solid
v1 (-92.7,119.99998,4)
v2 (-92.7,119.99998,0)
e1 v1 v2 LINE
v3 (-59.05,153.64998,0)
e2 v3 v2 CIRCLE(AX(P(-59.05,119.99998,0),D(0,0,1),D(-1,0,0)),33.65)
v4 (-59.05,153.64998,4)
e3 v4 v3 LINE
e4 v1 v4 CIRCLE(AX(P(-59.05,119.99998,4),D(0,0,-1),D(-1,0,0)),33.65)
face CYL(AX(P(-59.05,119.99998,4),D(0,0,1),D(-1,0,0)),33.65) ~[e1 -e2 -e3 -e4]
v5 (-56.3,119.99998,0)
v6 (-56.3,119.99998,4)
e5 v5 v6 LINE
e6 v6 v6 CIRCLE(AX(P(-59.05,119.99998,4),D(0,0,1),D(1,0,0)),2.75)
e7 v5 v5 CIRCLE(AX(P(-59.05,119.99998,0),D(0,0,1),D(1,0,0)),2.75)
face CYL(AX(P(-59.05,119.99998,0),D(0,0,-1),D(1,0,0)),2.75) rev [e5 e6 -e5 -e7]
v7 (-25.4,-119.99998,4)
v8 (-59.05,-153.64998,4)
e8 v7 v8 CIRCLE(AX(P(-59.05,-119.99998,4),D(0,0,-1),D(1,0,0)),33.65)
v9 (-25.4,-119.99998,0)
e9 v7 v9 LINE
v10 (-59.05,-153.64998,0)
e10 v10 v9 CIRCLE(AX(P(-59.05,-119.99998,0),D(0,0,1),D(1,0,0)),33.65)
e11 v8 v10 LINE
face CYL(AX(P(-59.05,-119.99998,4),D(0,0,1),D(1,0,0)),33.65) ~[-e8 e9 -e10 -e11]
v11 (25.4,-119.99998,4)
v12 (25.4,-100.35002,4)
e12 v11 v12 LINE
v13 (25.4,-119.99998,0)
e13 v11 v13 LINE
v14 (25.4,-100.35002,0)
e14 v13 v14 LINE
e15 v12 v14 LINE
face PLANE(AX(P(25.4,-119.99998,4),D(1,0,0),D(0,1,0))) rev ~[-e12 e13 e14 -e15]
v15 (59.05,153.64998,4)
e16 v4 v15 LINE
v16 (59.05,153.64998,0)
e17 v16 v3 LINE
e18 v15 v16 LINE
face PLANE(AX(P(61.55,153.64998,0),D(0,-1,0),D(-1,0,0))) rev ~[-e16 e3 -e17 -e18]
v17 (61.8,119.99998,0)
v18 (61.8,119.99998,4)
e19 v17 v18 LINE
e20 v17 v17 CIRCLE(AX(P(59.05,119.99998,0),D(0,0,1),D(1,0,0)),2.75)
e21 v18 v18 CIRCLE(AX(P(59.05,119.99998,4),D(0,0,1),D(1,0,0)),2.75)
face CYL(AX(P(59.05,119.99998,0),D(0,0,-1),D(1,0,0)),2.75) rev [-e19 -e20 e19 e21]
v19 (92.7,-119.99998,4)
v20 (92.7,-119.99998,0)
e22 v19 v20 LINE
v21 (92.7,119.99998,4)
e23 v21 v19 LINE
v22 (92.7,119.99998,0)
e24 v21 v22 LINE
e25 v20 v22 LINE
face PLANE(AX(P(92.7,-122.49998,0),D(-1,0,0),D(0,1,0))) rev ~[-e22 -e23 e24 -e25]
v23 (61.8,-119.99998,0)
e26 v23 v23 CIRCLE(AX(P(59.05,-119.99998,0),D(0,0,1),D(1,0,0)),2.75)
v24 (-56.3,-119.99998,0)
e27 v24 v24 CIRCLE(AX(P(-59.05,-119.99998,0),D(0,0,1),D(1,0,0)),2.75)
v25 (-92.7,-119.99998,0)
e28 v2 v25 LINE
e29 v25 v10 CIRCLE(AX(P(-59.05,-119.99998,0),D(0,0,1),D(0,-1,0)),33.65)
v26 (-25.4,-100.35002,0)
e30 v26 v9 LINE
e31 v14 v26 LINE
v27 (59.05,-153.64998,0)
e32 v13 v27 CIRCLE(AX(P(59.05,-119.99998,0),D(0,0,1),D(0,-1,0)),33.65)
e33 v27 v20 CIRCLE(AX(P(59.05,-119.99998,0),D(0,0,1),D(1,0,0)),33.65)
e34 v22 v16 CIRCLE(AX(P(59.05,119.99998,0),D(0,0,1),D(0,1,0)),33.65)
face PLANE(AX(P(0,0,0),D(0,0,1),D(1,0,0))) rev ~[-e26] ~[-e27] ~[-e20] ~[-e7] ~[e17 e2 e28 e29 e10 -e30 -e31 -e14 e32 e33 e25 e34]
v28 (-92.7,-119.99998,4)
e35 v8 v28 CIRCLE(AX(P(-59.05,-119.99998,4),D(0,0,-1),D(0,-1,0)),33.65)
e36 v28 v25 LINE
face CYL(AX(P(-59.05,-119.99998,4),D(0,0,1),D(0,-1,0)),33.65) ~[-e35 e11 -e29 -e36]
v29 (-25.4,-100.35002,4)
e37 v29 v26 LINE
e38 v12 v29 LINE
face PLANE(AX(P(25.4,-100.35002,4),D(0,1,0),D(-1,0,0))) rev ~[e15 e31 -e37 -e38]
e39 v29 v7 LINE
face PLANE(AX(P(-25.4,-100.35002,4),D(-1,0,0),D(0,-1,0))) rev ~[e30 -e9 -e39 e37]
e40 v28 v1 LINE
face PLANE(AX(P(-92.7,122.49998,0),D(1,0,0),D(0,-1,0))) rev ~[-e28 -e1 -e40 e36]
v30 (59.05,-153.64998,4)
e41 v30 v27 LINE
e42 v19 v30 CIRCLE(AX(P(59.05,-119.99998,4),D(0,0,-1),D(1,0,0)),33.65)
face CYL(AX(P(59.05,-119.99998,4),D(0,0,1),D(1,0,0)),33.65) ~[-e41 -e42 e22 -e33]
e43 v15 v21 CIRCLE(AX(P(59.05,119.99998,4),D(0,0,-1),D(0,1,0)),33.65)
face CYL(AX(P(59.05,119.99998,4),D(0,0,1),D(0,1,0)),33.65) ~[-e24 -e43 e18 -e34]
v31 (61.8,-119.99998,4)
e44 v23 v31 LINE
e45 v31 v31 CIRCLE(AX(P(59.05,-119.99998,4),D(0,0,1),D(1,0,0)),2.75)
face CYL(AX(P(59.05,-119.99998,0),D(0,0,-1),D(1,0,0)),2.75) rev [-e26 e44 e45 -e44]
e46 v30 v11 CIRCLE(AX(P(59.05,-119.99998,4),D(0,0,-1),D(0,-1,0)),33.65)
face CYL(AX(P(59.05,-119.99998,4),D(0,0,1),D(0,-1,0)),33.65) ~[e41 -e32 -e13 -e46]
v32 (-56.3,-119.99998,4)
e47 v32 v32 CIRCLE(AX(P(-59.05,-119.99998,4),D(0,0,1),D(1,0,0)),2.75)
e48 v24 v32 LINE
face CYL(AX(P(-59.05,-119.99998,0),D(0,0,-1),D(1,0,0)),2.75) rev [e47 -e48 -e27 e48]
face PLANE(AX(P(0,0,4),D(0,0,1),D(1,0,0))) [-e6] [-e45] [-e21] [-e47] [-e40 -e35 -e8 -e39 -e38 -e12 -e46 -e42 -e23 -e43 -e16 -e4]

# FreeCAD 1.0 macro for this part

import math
import FreeCAD as App
import Part
import Sketcher

V = App.Vector
Q = App.Units.Quantity

doc = App.newDocument("Part")
params = doc.addObject("Spreadsheet::Sheet", "Params")
for row, (alias, value) in enumerate([
    ("sketch1_diameter", "5.5 mm"),
    ("sketch1_radius", "31.15 mm"),
    ("sketch1_width", "123.1 mm"),
    ("pad1_length", "4 mm"),
    ("sketch2_radius", "33.65 mm"),
    ("sketch2_width", "118.1 mm"),
    ("pocket1_length", "25 mm"),
    ("sketch3_radius", "33.65 mm"),
    ("sketch3_width", "50.8 mm"),
    ("pocket2_length", "25 mm"),
], start=1):
    params.set(f"A{row}", alias)
    params.set(f"B{row}", "=" + value)
    params.setAlias(f"B{row}", alias)

body = doc.addObject("PartDesign::Body", "Body")

# Sketch on XY plane
sketch1 = body.newObject("Sketcher::SketchObject", "Sketch")
sketch1.AttachmentSupport = (doc.getObject("XY_Plane"), [""])
sketch1.MapMode = "FlatFace"
sketch1.addGeometry([
    Part.ArcOfCircle(Part.Circle(V(61.5, 122.5, 0), V(0, 0, 1), 31.1), math.radians(0), math.radians(90)),  # 0
    Part.LineSegment(V(61.5, 153.6, 0), V(-61.5, 153.6, 0)),  # 1
    Part.ArcOfCircle(Part.Circle(V(-61.5, 122.5, 0), V(0, 0, 1), 31.1), math.radians(90), math.radians(180)),  # 2
    Part.LineSegment(V(-92.7, 122.5, 0), V(-92.7, -122.5, 0)),  # 3
    Part.ArcOfCircle(Part.Circle(V(-61.5, -122.5, 0), V(0, 0, 1), 31.1), math.radians(180), math.radians(270)),  # 4
    Part.LineSegment(V(-61.5, -153.6, 0), V(61.5, -153.6, 0)),  # 5
    Part.ArcOfCircle(Part.Circle(V(61.5, -122.5, 0), V(0, 0, 1), 31.1), math.radians(-90), math.radians(0)),  # 6
    Part.LineSegment(V(92.7, -122.5, 0), V(92.7, 122.5, 0)),  # 7
    Part.Circle(V(-59, -120, 0), V(0, 0, 1), 2.8),  # 8
    Part.Circle(V(59, -120, 0), V(0, 0, 1), 2.8),  # 9
    Part.Circle(V(-59, 120, 0), V(0, 0, 1), 2.8),  # 10
    Part.Circle(V(59, 120, 0), V(0, 0, 1), 2.8),  # 11
], False)
sketch1.addConstraint([
    Sketcher.Constraint("Tangent", 0, 2, 1, 1),
    Sketcher.Constraint("Tangent", 1, 2, 2, 1),
    Sketcher.Constraint("Tangent", 2, 2, 3, 1),
    Sketcher.Constraint("Tangent", 3, 2, 4, 1),
    Sketcher.Constraint("Tangent", 4, 2, 5, 1),
    Sketcher.Constraint("Tangent", 5, 2, 6, 1),
    Sketcher.Constraint("Tangent", 6, 2, 7, 1),
    Sketcher.Constraint("Tangent", 7, 2, 0, 1),
    Sketcher.Constraint("Horizontal", 1),
    Sketcher.Constraint("Vertical", 3),
    Sketcher.Constraint("Horizontal", 5),
    Sketcher.Constraint("Vertical", 7),
    Sketcher.Constraint("Equal", 0, 2),
    Sketcher.Constraint("Equal", 2, 4),
    Sketcher.Constraint("Equal", 4, 6),
    Sketcher.Constraint("Equal", 8, 9),
    Sketcher.Constraint("Equal", 9, 10),
    Sketcher.Constraint("Equal", 10, 11),
    Sketcher.Constraint("Symmetric", 0, 3, 4, 3, -1, 1),
    Sketcher.Constraint("Symmetric", 9, 3, 10, 3, -1, 1),
    Sketcher.Constraint("Symmetric", 8, 3, 11, 3, -1, 1),
    Sketcher.Constraint("Symmetric", 8, 3, 9, 3, -2),
    Sketcher.Constraint("Diameter", 8, Q("5.5 mm")),
    Sketcher.Constraint("Radius", 0, Q("31.15 mm")),
    Sketcher.Constraint("DistanceX", 1, 2, 1, 1, Q("123.1 mm")),
    Sketcher.Constraint("DistanceX", 4, 3, 8, 3, Q("2.5 mm")),
    Sketcher.Constraint("DistanceY", 4, 3, 8, 3, Q("2.5 mm")),
    Sketcher.Constraint("DistanceY", 3, 2, 3, 1, Q("244.99996 mm")),
])
sketch1.setExpression("Constraints[22]", "Params.sketch1_diameter")
sketch1.setExpression("Constraints[23]", "Params.sketch1_radius")
sketch1.setExpression("Constraints[24]", "Params.sketch1_width")
pad1 = body.newObject("PartDesign::Pad", "Pad")
pad1.Profile = sketch1
pad1.setExpression("Length", "Params.pad1_length")

# Sketch on XY plane
sketch2 = body.newObject("Sketcher::SketchObject", "Sketch001")
sketch2.AttachmentSupport = (doc.getObject("XY_Plane"), [""])
sketch2.MapMode = "FlatFace"
sketch2.AttachmentOffset = App.Placement(V(0, 0, 4), App.Rotation())
sketch2.addGeometry([
    Part.LineSegment(V(-144, 176, 0), V(-144, -176, 0)),  # 0
    Part.LineSegment(V(-144, -176, 0), V(144, -176, 0)),  # 1
    Part.LineSegment(V(144, -176, 0), V(144, 176, 0)),  # 2
    Part.LineSegment(V(144, 176, 0), V(-144, 176, 0)),  # 3
    Part.LineSegment(V(-93, -120, 0), V(-93, 120, 0)),  # 4
    Part.ArcOfCircle(Part.Circle(V(-59, 120, 0), V(0, 0, 1), 34), math.radians(90), math.radians(180)),  # 5
    Part.LineSegment(V(-59, 154, 0), V(59, 154, 0)),  # 6
    Part.ArcOfCircle(Part.Circle(V(59, 120, 0), V(0, 0, 1), 34), math.radians(0), math.radians(90)),  # 7
    Part.LineSegment(V(93, 120, 0), V(93, -120, 0)),  # 8
    Part.ArcOfCircle(Part.Circle(V(59, -120, 0), V(0, 0, 1), 34), math.radians(-90), math.radians(0)),  # 9
    Part.LineSegment(V(59, -154, 0), V(-59, -154, 0)),  # 10
    Part.ArcOfCircle(Part.Circle(V(-59, -120, 0), V(0, 0, 1), 34), math.radians(180), math.radians(270)),  # 11
], False)
sketch2.addConstraint([
    Sketcher.Constraint("Coincident", 0, 2, 1, 1),
    Sketcher.Constraint("Coincident", 1, 2, 2, 1),
    Sketcher.Constraint("Coincident", 2, 2, 3, 1),
    Sketcher.Constraint("Coincident", 3, 2, 0, 1),
    Sketcher.Constraint("Tangent", 4, 2, 5, 2),
    Sketcher.Constraint("Tangent", 5, 1, 6, 1),
    Sketcher.Constraint("Tangent", 6, 2, 7, 2),
    Sketcher.Constraint("Tangent", 7, 1, 8, 1),
    Sketcher.Constraint("Tangent", 8, 2, 9, 2),
    Sketcher.Constraint("Tangent", 9, 1, 10, 1),
    Sketcher.Constraint("Tangent", 10, 2, 11, 2),
    Sketcher.Constraint("Tangent", 11, 1, 4, 1),
    Sketcher.Constraint("Vertical", 0),
    Sketcher.Constraint("Horizontal", 1),
    Sketcher.Constraint("Vertical", 2),
    Sketcher.Constraint("Horizontal", 3),
    Sketcher.Constraint("Vertical", 4),
    Sketcher.Constraint("Horizontal", 6),
    Sketcher.Constraint("Vertical", 8),
    Sketcher.Constraint("Horizontal", 10),
    Sketcher.Constraint("Equal", 5, 7),
    Sketcher.Constraint("Equal", 7, 9),
    Sketcher.Constraint("Equal", 9, 11),
    Sketcher.Constraint("Symmetric", 5, 3, 9, 3, -1, 1),
    Sketcher.Constraint("Symmetric", 0, 2, 2, 2, -1, 1),
    Sketcher.Constraint("Radius", 5, Q("33.65 mm")),
    Sketcher.Constraint("DistanceX", 6, 1, 6, 2, Q("118.1 mm")),
    Sketcher.Constraint("DistanceY", 4, 1, 4, 2, Q("239.99996 mm")),
    Sketcher.Constraint("DistanceX", 1, 1, 1, 2, Q("287.625134 mm")),
    Sketcher.Constraint("DistanceY", 0, 2, 0, 1, Q("352.353543 mm")),
])
sketch2.setExpression("Constraints[25]", "Params.sketch2_radius")
sketch2.setExpression("Constraints[26]", "Params.sketch2_width")
pocket1 = body.newObject("PartDesign::Pocket", "Pocket")
pocket1.Profile = sketch2
pocket1.setExpression("Length", "Params.pocket1_length")

# Sketch on XY plane
sketch3 = body.newObject("Sketcher::SketchObject", "Sketch002")
sketch3.AttachmentSupport = (doc.getObject("XY_Plane"), [""])
sketch3.MapMode = "FlatFace"
sketch3.AttachmentOffset = App.Placement(V(0, 0, 4), App.Rotation())
sketch3.addGeometry([
    Part.ArcOfCircle(Part.Circle(V(59, -120, 0), V(0, 0, 1), 34), math.radians(180), math.radians(270)),  # 0
    Part.LineSegment(V(25, -120, 0), V(25, -100, 0)),  # 1
    Part.LineSegment(V(25, -100, 0), V(-25, -100, 0)),  # 2
    Part.LineSegment(V(-25, -100, 0), V(-25, -120, 0)),  # 3
    Part.ArcOfCircle(Part.Circle(V(-59, -120, 0), V(0, 0, 1), 34), math.radians(-90), math.radians(0)),  # 4
    Part.LineSegment(V(-59, -154, 0), V(59, -154, 0)),  # 5
], False)
sketch3.addConstraint([
    Sketcher.Constraint("Tangent", 0, 1, 1, 1),
    Sketcher.Constraint("Coincident", 1, 2, 2, 1),
    Sketcher.Constraint("Coincident", 2, 2, 3, 1),
    Sketcher.Constraint("Tangent", 3, 2, 4, 2),
    Sketcher.Constraint("Tangent", 4, 1, 5, 1),
    Sketcher.Constraint("Tangent", 5, 2, 0, 2),
    Sketcher.Constraint("Vertical", 1),
    Sketcher.Constraint("Horizontal", 2),
    Sketcher.Constraint("Vertical", 3),
    Sketcher.Constraint("Horizontal", 5),
    Sketcher.Constraint("Equal", 0, 4),
    Sketcher.Constraint("Radius", 0, Q("33.65 mm")),
    Sketcher.Constraint("DistanceX", 2, 2, 2, 1, Q("50.8 mm")),
    Sketcher.Constraint("DistanceX", -1, 1, 0, 1, Q("25.4 mm")),
    Sketcher.Constraint("DistanceY", 1, 1, 1, 2, Q("19.64996 mm")),
    Sketcher.Constraint("DistanceY", 0, 3, -1, 1, Q("119.99998 mm")),
])
sketch3.setExpression("Constraints[11]", "Params.sketch3_radius")
sketch3.setExpression("Constraints[12]", "Params.sketch3_width")
pocket2 = body.newObject("PartDesign::Pocket", "Pocket001")
pocket2.Profile = sketch3
pocket2.setExpression("Length", "Params.pocket2_length")

doc.recompute()
